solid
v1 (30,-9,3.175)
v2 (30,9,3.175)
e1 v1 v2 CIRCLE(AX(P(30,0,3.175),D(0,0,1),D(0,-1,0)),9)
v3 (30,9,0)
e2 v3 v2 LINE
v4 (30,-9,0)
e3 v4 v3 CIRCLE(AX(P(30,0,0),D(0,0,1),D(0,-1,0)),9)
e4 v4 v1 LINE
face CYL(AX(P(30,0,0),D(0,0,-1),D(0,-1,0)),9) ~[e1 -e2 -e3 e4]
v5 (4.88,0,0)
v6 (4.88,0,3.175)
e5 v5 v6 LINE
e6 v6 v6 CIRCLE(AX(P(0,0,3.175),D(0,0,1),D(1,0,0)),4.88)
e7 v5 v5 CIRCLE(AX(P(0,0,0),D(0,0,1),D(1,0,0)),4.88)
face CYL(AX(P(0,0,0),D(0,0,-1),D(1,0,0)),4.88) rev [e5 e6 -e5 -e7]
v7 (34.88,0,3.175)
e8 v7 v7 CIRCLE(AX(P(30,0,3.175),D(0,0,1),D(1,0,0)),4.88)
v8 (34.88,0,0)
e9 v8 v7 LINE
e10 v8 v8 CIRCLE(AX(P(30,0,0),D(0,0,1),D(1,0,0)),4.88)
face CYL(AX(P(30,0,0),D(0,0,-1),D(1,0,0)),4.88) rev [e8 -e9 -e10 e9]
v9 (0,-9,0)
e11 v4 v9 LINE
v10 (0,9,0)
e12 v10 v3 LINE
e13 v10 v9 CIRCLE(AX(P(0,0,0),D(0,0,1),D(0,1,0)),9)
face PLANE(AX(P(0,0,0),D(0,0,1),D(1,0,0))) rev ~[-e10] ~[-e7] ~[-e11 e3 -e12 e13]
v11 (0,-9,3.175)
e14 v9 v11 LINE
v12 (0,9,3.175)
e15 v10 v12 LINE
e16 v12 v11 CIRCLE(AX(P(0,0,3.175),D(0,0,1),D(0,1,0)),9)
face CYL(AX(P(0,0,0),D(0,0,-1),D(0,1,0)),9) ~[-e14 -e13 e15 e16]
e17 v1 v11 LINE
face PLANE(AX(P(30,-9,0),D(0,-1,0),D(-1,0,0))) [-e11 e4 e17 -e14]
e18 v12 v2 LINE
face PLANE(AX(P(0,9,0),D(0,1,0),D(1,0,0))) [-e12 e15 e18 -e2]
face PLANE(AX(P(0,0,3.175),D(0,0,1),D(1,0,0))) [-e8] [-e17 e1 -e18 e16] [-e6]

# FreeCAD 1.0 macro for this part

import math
import FreeCAD as App
import Part
import Sketcher

doc = App.newDocument("Part")
body = doc.addObject("PartDesign::Body", "Body")

# Sketch on XY plane
sketch1 = doc.addObject("Sketcher::SketchObject", "Sketch")
body.addObject(sketch1)
sketch1.AttachmentSupport = (doc.XY_Plane, [""])
sketch1.MapMode = "FlatFace"
sketch1.addGeometry([
    Part.LineSegment(App.Vector(30, 9, 0), App.Vector(0, 9, 0)),  # 0
    Part.ArcOfCircle(Part.Circle(App.Vector(0, 0, 0), App.Vector(0, 0, 1), 9), math.radians(90), math.radians(270)),  # 1
    Part.LineSegment(App.Vector(0, -9, 0), App.Vector(30, -9, 0)),  # 2
    Part.ArcOfCircle(Part.Circle(App.Vector(30, 0, 0), App.Vector(0, 0, 1), 9), math.radians(-90), math.radians(90)),  # 3
    Part.Circle(App.Vector(0, 0, 0), App.Vector(0, 0, 1), 4.9),  # 4
    Part.Circle(App.Vector(30, 0, 0), App.Vector(0, 0, 1), 4.9),  # 5
], False)
sketch1.addConstraint([
    Sketcher.Constraint("Tangent", 0, 2, 1, 1),
    Sketcher.Constraint("Tangent", 1, 2, 2, 1),
    Sketcher.Constraint("Tangent", 2, 2, 3, 1),
    Sketcher.Constraint("Tangent", 3, 2, 0, 1),
    Sketcher.Constraint("Horizontal", 0),
    Sketcher.Constraint("Horizontal", 2),
    Sketcher.Constraint("Coincident", 1, 3, -1, 1),
    Sketcher.Constraint("Coincident", 4, 3, -1, 1),
    Sketcher.Constraint("Coincident", 5, 3, 3, 3),
    Sketcher.Constraint("Equal", 4, 5),
    Sketcher.Constraint("Radius", 1, 9.0),
    Sketcher.Constraint("Diameter", 4, 9.76),
    Sketcher.Constraint("DistanceX", 0, 2, 0, 1, 30.0),
])
pad1 = doc.addObject("PartDesign::Pad", "Pad")
body.addObject(pad1)
pad1.Profile = sketch1
pad1.Length = 3.175

doc.recompute()
